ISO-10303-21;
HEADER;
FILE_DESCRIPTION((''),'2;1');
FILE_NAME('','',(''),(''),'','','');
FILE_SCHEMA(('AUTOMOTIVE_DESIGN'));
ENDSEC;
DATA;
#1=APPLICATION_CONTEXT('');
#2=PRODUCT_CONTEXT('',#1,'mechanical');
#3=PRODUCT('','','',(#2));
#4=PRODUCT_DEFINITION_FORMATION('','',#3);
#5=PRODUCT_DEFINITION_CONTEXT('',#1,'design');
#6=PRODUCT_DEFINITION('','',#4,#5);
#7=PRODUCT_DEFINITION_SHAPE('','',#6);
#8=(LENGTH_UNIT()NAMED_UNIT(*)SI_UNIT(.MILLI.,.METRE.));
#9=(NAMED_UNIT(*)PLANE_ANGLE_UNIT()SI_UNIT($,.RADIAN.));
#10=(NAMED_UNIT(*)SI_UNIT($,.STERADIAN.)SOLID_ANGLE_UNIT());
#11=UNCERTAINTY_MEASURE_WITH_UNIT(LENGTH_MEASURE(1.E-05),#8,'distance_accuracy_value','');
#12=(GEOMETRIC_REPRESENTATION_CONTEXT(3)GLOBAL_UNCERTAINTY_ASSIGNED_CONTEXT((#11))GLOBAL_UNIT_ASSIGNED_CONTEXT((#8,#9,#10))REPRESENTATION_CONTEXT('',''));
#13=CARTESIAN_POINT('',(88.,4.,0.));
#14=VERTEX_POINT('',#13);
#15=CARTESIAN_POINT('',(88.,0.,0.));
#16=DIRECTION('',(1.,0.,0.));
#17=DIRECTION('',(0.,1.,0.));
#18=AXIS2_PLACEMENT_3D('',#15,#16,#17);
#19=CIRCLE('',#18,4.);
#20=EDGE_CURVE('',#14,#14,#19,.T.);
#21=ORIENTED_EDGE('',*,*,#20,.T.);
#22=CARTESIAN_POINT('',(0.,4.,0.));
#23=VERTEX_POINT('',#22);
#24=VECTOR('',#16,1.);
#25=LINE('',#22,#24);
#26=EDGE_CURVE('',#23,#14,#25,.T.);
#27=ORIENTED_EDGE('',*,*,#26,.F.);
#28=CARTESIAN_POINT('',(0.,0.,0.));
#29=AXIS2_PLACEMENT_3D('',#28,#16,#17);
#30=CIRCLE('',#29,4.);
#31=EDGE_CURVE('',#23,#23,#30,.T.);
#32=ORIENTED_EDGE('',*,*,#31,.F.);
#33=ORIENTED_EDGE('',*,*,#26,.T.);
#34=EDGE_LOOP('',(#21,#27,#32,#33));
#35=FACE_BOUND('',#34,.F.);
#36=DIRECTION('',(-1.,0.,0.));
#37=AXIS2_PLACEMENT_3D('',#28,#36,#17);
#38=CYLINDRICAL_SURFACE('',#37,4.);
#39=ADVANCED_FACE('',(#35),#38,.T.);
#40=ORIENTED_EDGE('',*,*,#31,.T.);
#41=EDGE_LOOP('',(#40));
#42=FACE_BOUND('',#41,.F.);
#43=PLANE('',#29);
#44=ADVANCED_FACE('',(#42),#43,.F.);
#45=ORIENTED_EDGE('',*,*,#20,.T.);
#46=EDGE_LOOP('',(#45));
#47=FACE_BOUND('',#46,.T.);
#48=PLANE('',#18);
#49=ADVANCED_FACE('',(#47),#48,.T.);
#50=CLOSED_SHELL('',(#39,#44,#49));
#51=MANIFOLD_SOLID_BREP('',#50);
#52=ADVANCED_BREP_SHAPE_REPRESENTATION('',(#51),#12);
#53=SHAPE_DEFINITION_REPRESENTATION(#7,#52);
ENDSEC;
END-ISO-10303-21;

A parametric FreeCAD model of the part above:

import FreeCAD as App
import Part
import Sketcher

doc = App.newDocument("Part")
body = doc.addObject("PartDesign::Body", "Body")

sketch1 = body.newObject("Sketcher::SketchObject", "Sketch")
sketch1.AttachmentSupport = (doc.getObject("YZ_Plane"), [""])
sketch1.MapMode = "FlatFace"
sketch1.addGeometry(Part.Circle(App.Vector(0, 0, 0), App.Vector(0, 0, 1), 4), False)
sketch1.addConstraint(Sketcher.Constraint("Coincident", 0, 3, -1, 1))
sketch1.addConstraint(Sketcher.Constraint("Diameter", 0, 8.0))
pad1 = body.newObject("PartDesign::Pad", "Pad")
pad1.Profile = sketch1
pad1.Length = 88

doc.recompute()
